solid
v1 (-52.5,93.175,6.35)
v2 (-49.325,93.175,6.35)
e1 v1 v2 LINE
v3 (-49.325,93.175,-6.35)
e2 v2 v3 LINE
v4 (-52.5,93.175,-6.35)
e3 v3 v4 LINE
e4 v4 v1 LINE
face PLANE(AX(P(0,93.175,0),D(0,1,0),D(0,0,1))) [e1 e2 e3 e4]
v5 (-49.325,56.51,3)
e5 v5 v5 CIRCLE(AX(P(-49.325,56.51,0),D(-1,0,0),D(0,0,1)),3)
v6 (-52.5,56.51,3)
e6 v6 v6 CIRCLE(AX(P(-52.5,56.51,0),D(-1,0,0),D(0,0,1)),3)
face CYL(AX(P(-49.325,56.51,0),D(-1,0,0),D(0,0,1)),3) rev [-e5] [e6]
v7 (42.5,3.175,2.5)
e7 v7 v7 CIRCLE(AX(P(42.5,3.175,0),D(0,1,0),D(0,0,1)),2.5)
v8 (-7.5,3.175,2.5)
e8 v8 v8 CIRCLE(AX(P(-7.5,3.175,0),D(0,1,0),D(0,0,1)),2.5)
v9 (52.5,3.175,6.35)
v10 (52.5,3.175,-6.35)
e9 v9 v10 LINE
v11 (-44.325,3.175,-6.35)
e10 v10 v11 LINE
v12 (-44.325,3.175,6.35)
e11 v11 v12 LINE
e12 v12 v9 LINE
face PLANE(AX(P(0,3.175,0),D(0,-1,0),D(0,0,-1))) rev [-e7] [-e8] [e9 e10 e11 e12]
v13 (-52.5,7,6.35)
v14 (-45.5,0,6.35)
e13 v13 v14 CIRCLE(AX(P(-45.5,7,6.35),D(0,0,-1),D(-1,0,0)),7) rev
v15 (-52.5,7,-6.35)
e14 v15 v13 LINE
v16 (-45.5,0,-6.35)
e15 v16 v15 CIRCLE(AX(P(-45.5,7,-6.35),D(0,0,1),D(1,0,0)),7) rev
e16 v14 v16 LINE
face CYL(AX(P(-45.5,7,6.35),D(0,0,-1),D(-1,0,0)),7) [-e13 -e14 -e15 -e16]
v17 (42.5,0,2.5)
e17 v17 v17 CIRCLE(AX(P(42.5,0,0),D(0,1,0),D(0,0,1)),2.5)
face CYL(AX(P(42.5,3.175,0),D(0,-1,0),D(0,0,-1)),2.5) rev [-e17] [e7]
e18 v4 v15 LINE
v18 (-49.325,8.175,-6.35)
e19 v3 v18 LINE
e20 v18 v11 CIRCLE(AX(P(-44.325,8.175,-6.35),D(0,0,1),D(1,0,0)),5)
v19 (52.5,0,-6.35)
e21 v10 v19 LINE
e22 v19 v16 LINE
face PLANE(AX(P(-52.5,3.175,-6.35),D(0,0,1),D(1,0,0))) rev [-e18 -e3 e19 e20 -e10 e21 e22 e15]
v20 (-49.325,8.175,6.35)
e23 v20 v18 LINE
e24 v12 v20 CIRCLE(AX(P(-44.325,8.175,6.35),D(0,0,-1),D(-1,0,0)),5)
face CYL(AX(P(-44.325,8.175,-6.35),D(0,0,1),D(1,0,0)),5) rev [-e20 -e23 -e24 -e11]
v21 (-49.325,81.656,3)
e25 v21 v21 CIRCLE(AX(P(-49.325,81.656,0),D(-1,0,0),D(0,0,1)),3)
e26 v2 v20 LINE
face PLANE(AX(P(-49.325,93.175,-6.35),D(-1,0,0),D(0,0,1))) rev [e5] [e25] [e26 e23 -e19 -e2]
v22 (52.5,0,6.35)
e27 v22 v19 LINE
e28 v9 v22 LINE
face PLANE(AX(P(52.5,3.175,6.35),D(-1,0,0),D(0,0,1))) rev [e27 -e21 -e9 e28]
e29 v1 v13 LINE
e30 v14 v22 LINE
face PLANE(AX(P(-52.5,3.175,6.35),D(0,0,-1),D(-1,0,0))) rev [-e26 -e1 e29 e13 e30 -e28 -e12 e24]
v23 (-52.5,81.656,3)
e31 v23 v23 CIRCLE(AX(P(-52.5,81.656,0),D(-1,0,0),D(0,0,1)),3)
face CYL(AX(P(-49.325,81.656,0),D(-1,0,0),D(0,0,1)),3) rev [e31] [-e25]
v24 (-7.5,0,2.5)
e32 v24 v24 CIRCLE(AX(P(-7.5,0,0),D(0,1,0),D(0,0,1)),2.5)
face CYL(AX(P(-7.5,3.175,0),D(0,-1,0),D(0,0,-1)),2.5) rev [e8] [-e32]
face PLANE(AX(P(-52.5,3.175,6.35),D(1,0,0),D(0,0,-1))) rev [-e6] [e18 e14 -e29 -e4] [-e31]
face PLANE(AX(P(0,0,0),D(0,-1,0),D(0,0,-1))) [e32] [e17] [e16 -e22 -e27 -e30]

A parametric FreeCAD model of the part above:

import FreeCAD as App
import Part
import Sketcher
from FreeCAD import Vector


def edges_at(feature, points):
    """Names of the edges that pass closest to the given points."""
    edges = feature.Shape.Edges
    near = lambda p: min(range(len(edges)), key=lambda i: edges[i].distToShape(Part.Vertex(*p))[0])
    return sorted({f"Edge{near(p) + 1}" for p in points})


def add_polygon(sketch, points):
    """Adds a closed chain of lines whose ends are joined by coincident constraints."""
    first, n = sketch.GeometryCount, len(points)
    for a, b in zip(points, points[1:] + points[:1]):
        sketch.addGeometry(Part.LineSegment(App.Vector(*a, 0), App.Vector(*b, 0)), False)
    for i in range(n):
        sketch.addConstraint(Sketcher.Constraint("Coincident", first + i, 2, first + (i + 1) % n, 1))

doc = App.newDocument("Part")
body = doc.addObject("PartDesign::Body", "Body")

# Sketch on XZ plane
sketch1 = doc.addObject("Sketcher::SketchObject", "Sketch")
body.addObject(sketch1)
sketch1.AttachmentSupport = (doc.XZ_Plane, [""])
sketch1.MapMode = "FlatFace"
add_polygon(sketch1, [(-52.5, -6.3), (-52.5, 6.3), (52.5, 6.3), (52.5, -6.3)])  # lines 0-3
sketch1.addGeometry(Part.Circle(Vector(-7.5, 0, 0), Vector(0, 0, 1), 2.5), False)  # 4
sketch1.addGeometry(Part.Circle(Vector(42.5, 0, 0), Vector(0, 0, 1), 2.5), False)  # 5
sketch1.addConstraint(Sketcher.Constraint("Vertical", 0))
sketch1.addConstraint(Sketcher.Constraint("Horizontal", 1))
sketch1.addConstraint(Sketcher.Constraint("Vertical", 2))
sketch1.addConstraint(Sketcher.Constraint("Horizontal", 3))
sketch1.addConstraint(Sketcher.Constraint("Equal", 4, 5))
sketch1.addConstraint(Sketcher.Constraint("Symmetric", 0, 2, 2, 2, -1, 1))
sketch1.addConstraint(Sketcher.Constraint("PointOnObject", 4, 3, -1))
sketch1.addConstraint(Sketcher.Constraint("PointOnObject", 5, 3, -1))
sketch1.addConstraint(Sketcher.Constraint("Diameter", 4, 5.0))
sketch1.addConstraint(Sketcher.Constraint("DistanceX", 1, 1, 1, 2, 105.0))
sketch1.addConstraint(Sketcher.Constraint("DistanceY", 0, 1, 0, 2, 12.7))
sketch1.addConstraint(Sketcher.Constraint("DistanceX", 4, 3, 5, 3, 50.0))
sketch1.addConstraint(Sketcher.Constraint("DistanceX", 0, 2, 4, 3, 45.0))
pad1 = doc.addObject("PartDesign::Pad", "Pad")
body.addObject(pad1)
pad1.Profile = sketch1
pad1.Length = 3.175
pad1.Reversed = True

# Sketch on XZ plane
sketch2 = doc.addObject("Sketcher::SketchObject", "Sketch001")
body.addObject(sketch2)
sketch2.AttachmentSupport = (doc.XZ_Plane, [""])
sketch2.MapMode = "FlatFace"
sketch2.AttachmentOffset = App.Placement(Vector(0, 0, -3.175), App.Rotation())
add_polygon(sketch2, [(-52.5, -6.3), (-52.5, 6.3), (-49.3, 6.3), (-49.3, -6.3)])  # lines 0-3
sketch2.addConstraint(Sketcher.Constraint("Vertical", 0))
sketch2.addConstraint(Sketcher.Constraint("Horizontal", 1))
sketch2.addConstraint(Sketcher.Constraint("Vertical", 2))
sketch2.addConstraint(Sketcher.Constraint("Horizontal", 3))
sketch2.addConstraint(Sketcher.Constraint("DistanceY", 0, 1, 0, 2, 12.7))
sketch2.addConstraint(Sketcher.Constraint("DistanceX", 0, 2, -1, 1, 52.5))
sketch2.addConstraint(Sketcher.Constraint("DistanceX", 1, 1, 1, 2, 3.175))
sketch2.addConstraint(Sketcher.Constraint("DistanceY", -1, 1, 0, 2, 6.35))
pad2 = doc.addObject("PartDesign::Pad", "Pad001")
body.addObject(pad2)
pad2.Profile = sketch2
pad2.Length = 90
pad2.Reversed = True

# Sketch on YZ plane
sketch3 = doc.addObject("Sketcher::SketchObject", "Sketch002")
body.addObject(sketch3)
sketch3.AttachmentSupport = (doc.YZ_Plane, [""])
sketch3.MapMode = "FlatFace"
sketch3.AttachmentOffset = App.Placement(Vector(0, 0, -52.5), App.Rotation())
sketch3.addGeometry(Part.Circle(Vector(56.5, 0, 0), Vector(0, 0, 1), 3), False)
sketch3.addGeometry(Part.Circle(Vector(81.7, 0, 0), Vector(0, 0, 1), 3), False)
sketch3.addConstraint(Sketcher.Constraint("Equal", 0, 1))
sketch3.addConstraint(Sketcher.Constraint("PointOnObject", 0, 3, -1))
sketch3.addConstraint(Sketcher.Constraint("PointOnObject", 1, 3, -1))
sketch3.addConstraint(Sketcher.Constraint("Diameter", 0, 6.0))
sketch3.addConstraint(Sketcher.Constraint("DistanceX", -1, 1, 0, 3, 56.51))
sketch3.addConstraint(Sketcher.Constraint("DistanceX", -1, 1, 1, 3, 81.656))
pocket1 = doc.addObject("PartDesign::Pocket", "Pocket")
body.addObject(pocket1)
pocket1.Profile = sketch3
pocket1.Length = 3.175
pocket1.Reversed = True
doc.recompute()

fillet = doc.addObject("PartDesign::Fillet", "Fillet")
body.addObject(fillet)
fillet.Base = (pocket1, edges_at(pocket1, [(-49.325, 3.175, 0)]))
fillet.Radius = 5
doc.recompute()

fillet2 = doc.addObject("PartDesign::Fillet", "Fillet001")
body.addObject(fillet2)
fillet2.Base = (fillet, edges_at(fillet, [(-52.5, 0, 0)]))
fillet2.Radius = 7

doc.recompute()
